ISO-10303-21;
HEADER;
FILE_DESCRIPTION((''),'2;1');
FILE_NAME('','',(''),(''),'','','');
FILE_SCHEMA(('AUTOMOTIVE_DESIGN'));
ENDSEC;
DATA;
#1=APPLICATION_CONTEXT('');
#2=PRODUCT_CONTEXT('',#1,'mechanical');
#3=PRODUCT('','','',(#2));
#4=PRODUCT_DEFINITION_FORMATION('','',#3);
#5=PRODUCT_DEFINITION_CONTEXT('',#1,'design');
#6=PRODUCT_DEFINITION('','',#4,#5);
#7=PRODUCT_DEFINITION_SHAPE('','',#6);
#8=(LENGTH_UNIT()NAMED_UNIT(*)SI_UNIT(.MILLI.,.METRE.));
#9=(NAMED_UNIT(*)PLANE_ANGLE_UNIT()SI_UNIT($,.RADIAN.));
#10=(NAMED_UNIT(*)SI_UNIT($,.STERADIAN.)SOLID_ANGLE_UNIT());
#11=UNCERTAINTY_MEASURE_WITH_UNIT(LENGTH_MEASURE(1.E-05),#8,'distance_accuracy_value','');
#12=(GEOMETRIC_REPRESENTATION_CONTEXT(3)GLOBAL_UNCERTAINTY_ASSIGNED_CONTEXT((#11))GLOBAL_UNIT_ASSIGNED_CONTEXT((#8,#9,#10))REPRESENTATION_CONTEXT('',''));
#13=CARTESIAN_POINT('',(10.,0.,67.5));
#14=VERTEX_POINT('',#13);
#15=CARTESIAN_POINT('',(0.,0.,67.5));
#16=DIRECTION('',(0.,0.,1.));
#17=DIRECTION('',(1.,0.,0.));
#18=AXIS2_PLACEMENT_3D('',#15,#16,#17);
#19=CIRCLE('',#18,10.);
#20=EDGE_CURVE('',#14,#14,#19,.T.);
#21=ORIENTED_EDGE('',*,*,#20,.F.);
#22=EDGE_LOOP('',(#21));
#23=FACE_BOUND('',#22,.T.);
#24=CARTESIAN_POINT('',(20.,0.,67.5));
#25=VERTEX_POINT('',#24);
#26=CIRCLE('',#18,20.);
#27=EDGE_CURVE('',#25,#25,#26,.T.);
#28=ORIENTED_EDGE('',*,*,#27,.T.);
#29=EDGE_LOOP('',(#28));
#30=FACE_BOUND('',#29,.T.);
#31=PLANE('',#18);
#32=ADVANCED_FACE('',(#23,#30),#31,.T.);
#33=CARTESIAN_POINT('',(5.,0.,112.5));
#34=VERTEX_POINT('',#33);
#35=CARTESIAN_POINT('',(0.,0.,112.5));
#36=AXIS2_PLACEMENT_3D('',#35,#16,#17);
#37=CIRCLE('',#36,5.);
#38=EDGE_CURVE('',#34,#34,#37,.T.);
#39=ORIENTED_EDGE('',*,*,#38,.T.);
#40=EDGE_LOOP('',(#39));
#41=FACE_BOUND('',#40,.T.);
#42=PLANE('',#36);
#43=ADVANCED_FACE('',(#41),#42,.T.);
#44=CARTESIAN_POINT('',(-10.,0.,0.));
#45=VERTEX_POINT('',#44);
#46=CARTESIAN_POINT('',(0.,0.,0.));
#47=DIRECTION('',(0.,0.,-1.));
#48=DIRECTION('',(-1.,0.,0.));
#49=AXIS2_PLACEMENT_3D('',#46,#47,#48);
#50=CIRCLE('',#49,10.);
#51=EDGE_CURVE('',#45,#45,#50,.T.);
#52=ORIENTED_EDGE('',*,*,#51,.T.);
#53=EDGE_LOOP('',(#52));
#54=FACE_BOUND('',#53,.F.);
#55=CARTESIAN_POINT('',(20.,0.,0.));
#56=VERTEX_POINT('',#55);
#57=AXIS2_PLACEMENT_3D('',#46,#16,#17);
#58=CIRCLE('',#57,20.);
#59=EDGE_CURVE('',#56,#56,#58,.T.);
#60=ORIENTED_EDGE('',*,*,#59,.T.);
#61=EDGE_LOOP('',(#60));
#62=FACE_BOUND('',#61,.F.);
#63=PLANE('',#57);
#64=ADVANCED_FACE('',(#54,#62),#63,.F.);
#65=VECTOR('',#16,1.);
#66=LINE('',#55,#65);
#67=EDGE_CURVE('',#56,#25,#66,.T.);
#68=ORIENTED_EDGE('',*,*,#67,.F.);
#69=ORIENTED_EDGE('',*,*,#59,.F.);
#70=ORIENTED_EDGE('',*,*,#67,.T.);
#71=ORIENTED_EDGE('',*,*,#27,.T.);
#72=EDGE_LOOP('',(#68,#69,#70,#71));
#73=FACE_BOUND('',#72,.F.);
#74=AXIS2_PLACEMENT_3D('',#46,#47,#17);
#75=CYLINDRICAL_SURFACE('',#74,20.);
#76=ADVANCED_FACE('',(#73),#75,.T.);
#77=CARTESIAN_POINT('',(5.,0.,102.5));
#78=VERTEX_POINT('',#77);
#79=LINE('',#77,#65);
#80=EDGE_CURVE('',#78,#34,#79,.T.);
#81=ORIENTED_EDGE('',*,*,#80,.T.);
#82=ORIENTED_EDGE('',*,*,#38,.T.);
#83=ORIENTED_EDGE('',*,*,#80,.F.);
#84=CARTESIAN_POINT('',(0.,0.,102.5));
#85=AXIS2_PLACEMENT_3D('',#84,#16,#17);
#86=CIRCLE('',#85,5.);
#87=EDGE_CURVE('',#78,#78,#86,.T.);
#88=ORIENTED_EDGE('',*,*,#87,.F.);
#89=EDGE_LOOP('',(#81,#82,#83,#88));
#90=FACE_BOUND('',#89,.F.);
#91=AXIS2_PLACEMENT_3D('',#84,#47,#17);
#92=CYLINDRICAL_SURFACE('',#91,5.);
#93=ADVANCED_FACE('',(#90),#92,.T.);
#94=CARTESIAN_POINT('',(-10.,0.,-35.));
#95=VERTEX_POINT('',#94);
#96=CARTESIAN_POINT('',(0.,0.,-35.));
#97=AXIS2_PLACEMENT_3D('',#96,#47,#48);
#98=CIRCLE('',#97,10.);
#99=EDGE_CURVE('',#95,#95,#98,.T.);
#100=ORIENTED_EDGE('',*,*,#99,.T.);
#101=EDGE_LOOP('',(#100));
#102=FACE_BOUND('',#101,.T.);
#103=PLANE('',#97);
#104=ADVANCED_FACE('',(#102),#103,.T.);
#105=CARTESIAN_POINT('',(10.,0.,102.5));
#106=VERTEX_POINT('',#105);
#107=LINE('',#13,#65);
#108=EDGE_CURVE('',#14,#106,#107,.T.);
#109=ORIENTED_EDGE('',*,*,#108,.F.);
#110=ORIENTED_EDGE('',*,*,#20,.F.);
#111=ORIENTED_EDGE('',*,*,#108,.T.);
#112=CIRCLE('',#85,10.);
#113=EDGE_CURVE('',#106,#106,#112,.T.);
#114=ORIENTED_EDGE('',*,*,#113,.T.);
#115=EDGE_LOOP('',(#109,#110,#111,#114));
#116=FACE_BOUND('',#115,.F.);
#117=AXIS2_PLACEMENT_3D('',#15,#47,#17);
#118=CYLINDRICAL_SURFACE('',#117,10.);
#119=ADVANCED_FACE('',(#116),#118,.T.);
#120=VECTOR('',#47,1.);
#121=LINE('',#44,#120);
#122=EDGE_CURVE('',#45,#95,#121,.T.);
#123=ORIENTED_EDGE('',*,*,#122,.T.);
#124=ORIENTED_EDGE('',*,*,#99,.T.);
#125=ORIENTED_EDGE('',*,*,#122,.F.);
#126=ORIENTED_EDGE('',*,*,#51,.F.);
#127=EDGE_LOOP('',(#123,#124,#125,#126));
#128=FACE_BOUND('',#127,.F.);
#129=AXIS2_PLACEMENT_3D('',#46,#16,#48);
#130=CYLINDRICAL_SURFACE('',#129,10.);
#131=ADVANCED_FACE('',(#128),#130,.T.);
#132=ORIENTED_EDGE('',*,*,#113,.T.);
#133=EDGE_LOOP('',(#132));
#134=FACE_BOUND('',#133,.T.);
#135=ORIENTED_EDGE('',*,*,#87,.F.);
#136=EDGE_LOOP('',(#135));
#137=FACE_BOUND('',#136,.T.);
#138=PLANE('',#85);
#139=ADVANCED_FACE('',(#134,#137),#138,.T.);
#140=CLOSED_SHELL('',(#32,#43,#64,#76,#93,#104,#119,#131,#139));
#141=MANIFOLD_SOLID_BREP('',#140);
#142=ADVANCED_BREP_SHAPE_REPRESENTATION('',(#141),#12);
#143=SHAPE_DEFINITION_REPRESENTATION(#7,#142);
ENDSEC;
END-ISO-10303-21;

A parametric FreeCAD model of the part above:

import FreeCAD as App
import Part
import Sketcher

doc = App.newDocument("Part")
body = doc.addObject("PartDesign::Body", "Body")

sketch1 = doc.addObject("Sketcher::SketchObject", "Sketch")
body.addObject(sketch1)
sketch1.AttachmentSupport = (doc.XY_Plane, [""])
sketch1.MapMode = "FlatFace"
sketch1.addGeometry(Part.Circle(App.Vector(0, 0, 0), App.Vector(0, 0, 1), 20), False)
sketch1.addConstraint(Sketcher.Constraint("Coincident", 0, 3, -1, 1))
sketch1.addConstraint(Sketcher.Constraint("Diameter", 0, 40.0))
pad1 = doc.addObject("PartDesign::Pad", "Pad")
body.addObject(pad1)
pad1.Profile = sketch1
pad1.Length = 67.5

sketch2 = doc.addObject("Sketcher::SketchObject", "Sketch001")
body.addObject(sketch2)
sketch2.AttachmentSupport = (doc.XY_Plane, [""])
sketch2.MapMode = "FlatFace"
sketch2.AttachmentOffset = App.Placement(App.Vector(0, 0, 67.5), App.Rotation())
sketch2.addGeometry(Part.Circle(App.Vector(0, 0, 0), App.Vector(0, 0, 1), 10), False)
sketch2.addConstraint(Sketcher.Constraint("Coincident", 0, 3, -1, 1))
sketch2.addConstraint(Sketcher.Constraint("Diameter", 0, 20.0))
pad2 = doc.addObject("PartDesign::Pad", "Pad001")
body.addObject(pad2)
pad2.Profile = sketch2
pad2.Length = 35

sketch3 = doc.addObject("Sketcher::SketchObject", "Sketch002")
body.addObject(sketch3)
sketch3.AttachmentSupport = (doc.XY_Plane, [""])
sketch3.MapMode = "FlatFace"
sketch3.addGeometry(Part.Circle(App.Vector(0, 0, 0), App.Vector(0, 0, 1), 10), False)
sketch3.addConstraint(Sketcher.Constraint("Coincident", 0, 3, -1, 1))
sketch3.addConstraint(Sketcher.Constraint("Diameter", 0, 20.0))
pad3 = doc.addObject("PartDesign::Pad", "Pad002")
body.addObject(pad3)
pad3.Profile = sketch3
pad3.Length = 35
pad3.Reversed = True

sketch4 = doc.addObject("Sketcher::SketchObject", "Sketch003")
body.addObject(sketch4)
sketch4.AttachmentSupport = (doc.XY_Plane, [""])
sketch4.MapMode = "FlatFace"
sketch4.AttachmentOffset = App.Placement(App.Vector(0, 0, 102.5), App.Rotation())
sketch4.addGeometry(Part.Circle(App.Vector(0, 0, 0), App.Vector(0, 0, 1), 5), False)
sketch4.addConstraint(Sketcher.Constraint("Coincident", 0, 3, -1, 1))
sketch4.addConstraint(Sketcher.Constraint("Diameter", 0, 10.0))
pad4 = doc.addObject("PartDesign::Pad", "Pad003")
body.addObject(pad4)
pad4.Profile = sketch4
pad4.Length = 10

doc.recompute()
